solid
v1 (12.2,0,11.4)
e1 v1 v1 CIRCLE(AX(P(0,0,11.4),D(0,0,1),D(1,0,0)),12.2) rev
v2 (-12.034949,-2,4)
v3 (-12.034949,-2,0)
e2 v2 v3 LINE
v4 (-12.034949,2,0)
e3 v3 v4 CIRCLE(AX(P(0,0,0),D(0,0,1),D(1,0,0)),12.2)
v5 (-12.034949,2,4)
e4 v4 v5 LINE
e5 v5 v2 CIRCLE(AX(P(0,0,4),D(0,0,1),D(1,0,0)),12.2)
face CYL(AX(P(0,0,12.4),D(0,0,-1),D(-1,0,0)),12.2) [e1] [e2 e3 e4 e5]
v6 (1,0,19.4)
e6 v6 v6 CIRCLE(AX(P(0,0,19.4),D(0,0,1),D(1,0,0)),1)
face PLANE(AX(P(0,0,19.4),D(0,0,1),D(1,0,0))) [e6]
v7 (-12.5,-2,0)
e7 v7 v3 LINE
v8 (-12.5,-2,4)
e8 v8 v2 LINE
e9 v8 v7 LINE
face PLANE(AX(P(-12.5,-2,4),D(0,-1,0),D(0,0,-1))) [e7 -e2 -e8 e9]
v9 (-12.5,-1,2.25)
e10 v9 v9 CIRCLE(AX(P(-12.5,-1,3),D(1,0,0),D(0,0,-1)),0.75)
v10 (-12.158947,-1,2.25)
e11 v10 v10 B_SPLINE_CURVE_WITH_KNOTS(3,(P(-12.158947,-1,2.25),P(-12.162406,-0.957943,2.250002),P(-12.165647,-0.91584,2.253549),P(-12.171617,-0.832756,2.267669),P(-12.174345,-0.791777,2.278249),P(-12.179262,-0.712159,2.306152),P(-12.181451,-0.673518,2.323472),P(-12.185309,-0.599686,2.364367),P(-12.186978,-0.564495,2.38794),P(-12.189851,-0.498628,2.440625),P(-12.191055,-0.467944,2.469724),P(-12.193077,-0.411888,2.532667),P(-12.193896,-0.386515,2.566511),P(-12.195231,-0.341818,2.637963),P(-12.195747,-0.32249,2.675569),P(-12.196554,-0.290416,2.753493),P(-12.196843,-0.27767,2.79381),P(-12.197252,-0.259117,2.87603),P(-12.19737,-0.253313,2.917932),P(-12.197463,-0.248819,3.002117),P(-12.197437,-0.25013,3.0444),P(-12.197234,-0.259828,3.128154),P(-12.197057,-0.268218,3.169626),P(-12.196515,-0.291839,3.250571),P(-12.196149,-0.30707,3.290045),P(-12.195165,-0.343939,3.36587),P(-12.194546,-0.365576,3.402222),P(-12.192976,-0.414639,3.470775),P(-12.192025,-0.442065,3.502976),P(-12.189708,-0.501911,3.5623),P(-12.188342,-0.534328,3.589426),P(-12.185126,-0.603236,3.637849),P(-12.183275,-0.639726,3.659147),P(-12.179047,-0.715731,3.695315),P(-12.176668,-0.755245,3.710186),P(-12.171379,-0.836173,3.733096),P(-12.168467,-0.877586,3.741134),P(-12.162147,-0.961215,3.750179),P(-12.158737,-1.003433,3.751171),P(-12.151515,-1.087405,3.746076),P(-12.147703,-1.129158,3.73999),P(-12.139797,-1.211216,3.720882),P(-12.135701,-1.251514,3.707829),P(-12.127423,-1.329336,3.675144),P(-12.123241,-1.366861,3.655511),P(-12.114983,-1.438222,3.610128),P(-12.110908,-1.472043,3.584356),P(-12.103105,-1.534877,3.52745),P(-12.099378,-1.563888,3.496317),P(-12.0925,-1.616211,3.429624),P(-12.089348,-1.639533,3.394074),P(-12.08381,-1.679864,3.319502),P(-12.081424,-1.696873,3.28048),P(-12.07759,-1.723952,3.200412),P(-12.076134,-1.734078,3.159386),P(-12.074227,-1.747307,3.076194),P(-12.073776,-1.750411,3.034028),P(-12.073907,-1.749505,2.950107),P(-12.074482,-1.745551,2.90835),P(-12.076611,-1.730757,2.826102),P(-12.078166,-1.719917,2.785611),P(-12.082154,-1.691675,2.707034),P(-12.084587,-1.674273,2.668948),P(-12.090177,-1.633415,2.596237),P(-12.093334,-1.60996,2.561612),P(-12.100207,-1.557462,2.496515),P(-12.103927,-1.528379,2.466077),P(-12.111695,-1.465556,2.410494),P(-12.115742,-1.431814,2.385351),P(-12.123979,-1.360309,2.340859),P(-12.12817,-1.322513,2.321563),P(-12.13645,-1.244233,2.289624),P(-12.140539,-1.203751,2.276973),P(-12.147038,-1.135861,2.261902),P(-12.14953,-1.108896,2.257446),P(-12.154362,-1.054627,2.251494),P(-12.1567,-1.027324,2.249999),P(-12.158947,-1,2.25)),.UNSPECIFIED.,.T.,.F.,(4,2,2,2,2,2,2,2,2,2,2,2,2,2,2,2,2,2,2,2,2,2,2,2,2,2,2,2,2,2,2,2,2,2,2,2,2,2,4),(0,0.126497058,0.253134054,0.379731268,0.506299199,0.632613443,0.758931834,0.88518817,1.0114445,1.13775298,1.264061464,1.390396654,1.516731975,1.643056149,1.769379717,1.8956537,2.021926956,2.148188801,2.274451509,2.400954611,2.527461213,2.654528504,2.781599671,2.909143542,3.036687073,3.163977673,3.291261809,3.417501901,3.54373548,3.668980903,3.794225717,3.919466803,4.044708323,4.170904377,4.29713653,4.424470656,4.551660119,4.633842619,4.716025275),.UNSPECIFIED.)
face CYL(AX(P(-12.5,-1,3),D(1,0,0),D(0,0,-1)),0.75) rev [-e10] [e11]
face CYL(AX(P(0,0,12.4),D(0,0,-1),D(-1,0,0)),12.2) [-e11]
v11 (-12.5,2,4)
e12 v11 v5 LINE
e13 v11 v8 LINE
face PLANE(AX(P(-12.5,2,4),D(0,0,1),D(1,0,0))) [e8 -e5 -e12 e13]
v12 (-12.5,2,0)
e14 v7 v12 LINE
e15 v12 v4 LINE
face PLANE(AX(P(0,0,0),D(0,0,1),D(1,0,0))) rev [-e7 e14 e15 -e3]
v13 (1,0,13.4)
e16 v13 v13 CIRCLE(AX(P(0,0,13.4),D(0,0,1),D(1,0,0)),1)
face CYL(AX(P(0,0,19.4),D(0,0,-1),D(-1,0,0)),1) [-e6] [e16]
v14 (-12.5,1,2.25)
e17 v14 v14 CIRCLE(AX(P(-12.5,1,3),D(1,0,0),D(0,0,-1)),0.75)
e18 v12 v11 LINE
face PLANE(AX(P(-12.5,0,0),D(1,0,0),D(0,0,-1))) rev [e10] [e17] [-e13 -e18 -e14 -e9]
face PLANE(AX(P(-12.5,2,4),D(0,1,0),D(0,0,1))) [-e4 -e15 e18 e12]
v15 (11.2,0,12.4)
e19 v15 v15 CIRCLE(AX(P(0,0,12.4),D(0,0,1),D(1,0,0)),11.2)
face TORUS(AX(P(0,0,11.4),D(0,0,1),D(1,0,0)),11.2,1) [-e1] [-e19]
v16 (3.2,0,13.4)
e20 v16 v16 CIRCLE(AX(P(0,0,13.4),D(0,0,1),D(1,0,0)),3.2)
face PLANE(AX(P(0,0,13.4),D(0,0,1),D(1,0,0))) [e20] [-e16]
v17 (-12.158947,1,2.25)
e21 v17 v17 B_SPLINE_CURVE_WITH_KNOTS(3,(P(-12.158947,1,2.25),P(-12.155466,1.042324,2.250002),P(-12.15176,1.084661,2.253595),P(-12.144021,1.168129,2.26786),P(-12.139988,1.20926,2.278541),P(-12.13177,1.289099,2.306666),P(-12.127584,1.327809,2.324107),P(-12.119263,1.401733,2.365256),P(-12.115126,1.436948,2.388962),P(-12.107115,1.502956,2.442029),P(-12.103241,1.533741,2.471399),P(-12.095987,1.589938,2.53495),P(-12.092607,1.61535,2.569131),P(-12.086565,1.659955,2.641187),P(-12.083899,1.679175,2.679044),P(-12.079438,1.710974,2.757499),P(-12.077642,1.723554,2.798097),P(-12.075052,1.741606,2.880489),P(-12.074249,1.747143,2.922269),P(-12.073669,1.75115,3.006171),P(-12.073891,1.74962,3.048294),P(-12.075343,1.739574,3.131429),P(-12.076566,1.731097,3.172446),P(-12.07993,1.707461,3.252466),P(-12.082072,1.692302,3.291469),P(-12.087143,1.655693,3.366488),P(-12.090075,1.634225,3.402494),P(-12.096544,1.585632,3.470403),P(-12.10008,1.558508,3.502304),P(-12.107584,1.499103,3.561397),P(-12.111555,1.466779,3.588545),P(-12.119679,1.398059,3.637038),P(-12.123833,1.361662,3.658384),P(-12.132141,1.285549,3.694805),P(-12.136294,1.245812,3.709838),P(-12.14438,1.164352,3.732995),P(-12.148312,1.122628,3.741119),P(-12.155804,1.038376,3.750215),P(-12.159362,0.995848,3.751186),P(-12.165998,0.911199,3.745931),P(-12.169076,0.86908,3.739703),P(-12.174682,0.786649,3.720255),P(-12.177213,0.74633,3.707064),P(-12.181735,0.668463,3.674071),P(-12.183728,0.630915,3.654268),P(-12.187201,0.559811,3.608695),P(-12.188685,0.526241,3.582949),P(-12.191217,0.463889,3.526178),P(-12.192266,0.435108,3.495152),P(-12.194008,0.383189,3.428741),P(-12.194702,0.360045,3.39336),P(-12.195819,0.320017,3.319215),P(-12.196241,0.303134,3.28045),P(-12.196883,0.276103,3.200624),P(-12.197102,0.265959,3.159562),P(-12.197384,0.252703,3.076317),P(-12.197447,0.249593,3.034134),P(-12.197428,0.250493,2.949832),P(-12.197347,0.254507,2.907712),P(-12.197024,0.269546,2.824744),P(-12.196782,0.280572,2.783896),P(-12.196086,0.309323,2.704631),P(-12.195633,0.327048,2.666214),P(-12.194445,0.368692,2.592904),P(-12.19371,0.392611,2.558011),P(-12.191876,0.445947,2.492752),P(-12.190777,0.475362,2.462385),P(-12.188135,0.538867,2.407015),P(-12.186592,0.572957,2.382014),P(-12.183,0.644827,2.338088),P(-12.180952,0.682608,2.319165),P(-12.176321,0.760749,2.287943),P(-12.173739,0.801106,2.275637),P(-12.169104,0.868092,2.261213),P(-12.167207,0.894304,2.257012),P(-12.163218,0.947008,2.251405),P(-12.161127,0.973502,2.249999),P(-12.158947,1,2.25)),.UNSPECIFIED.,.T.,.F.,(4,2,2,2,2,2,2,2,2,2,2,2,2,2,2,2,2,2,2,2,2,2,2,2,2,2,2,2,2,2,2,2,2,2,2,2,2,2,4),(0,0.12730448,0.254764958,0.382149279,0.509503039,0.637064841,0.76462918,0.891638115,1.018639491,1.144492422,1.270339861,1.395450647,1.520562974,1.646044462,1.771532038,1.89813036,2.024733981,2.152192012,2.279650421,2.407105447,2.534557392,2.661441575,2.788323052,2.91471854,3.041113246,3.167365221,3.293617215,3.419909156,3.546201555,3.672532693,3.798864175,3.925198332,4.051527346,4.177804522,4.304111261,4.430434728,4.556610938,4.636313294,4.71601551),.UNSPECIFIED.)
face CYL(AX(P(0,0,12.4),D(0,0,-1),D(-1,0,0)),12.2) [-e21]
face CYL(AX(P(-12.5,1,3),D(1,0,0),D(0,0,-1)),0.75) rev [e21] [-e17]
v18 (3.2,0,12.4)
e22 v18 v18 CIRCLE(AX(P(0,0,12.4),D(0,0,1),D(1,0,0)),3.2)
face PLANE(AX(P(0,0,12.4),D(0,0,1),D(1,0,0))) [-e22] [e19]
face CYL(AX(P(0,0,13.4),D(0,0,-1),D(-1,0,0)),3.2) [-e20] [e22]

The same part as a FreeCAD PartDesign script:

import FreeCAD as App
import Part
import Sketcher
Q = App.Units.Quantity


def edges_at(feature, points):
    """Names of the edges that pass closest to the given points."""
    edges = feature.Shape.Edges
    near = lambda p: min(range(len(edges)), key=lambda i: edges[i].distToShape(Part.Vertex(*p))[0])
    return sorted({f"Edge{near(p) + 1}" for p in points})

doc = App.newDocument("Part")
body = doc.addObject("PartDesign::Body", "Body")

# Sketch on XY plane
sketch1 = body.newObject("Sketcher::SketchObject", "Sketch")
sketch1.AttachmentSupport = (doc.getObject("XY_Plane"), [""])
sketch1.MapMode = "FlatFace"
sketch1.addGeometry(Part.Circle(App.Vector(0, 0, 0), App.Vector(0, 0, 1), 12), False)
sketch1.addConstraint(Sketcher.Constraint("Coincident", 0, 3, -1, 1))
sketch1.addConstraint(Sketcher.Constraint("Diameter", 0, Q("24.4 mm")))
pad1 = body.newObject("PartDesign::Pad", "Pad")
pad1.Profile = sketch1
pad1.Length = 12.4

# Sketch on XY plane
sketch2 = body.newObject("Sketcher::SketchObject", "Sketch001")
sketch2.AttachmentSupport = (doc.getObject("XY_Plane"), [""])
sketch2.MapMode = "FlatFace"
sketch2.AttachmentOffset = App.Placement(App.Vector(0, 0, 12.4), App.Rotation())
sketch2.addGeometry(Part.Circle(App.Vector(0, 0, 0), App.Vector(0, 0, 1), 1), False)
sketch2.addConstraint(Sketcher.Constraint("Coincident", 0, 3, -1, 1))
sketch2.addConstraint(Sketcher.Constraint("Diameter", 0, Q("2 mm")))
pad2 = body.newObject("PartDesign::Pad", "Pad001")
pad2.Profile = sketch2
pad2.Length = 7

# Sketch on XY plane
sketch3 = body.newObject("Sketcher::SketchObject", "Sketch002")
sketch3.AttachmentSupport = (doc.getObject("XY_Plane"), [""])
sketch3.MapMode = "FlatFace"
sketch3.AttachmentOffset = App.Placement(App.Vector(0, 0, 12.4), App.Rotation())
sketch3.addGeometry(Part.Circle(App.Vector(0, 0, 0), App.Vector(0, 0, 1), 3.2), False)
sketch3.addConstraint(Sketcher.Constraint("Coincident", 0, 3, -1, 1))
sketch3.addConstraint(Sketcher.Constraint("Diameter", 0, Q("6.4 mm")))
pad3 = body.newObject("PartDesign::Pad", "Pad002")
pad3.Profile = sketch3
pad3.Length = 1

# Sketch on YZ plane
sketch4 = body.newObject("Sketcher::SketchObject", "Sketch003")
sketch4.AttachmentSupport = (doc.getObject("YZ_Plane"), [""])
sketch4.MapMode = "FlatFace"
sketch4.addGeometry(Part.LineSegment(App.Vector(2, 4, 0), App.Vector(-2, 4, 0)), False)
sketch4.addGeometry(Part.LineSegment(App.Vector(-2, 4, 0), App.Vector(-2, 0, 0)), False)
sketch4.addGeometry(Part.LineSegment(App.Vector(-2, 0, 0), App.Vector(2, 0, 0)), False)
sketch4.addGeometry(Part.LineSegment(App.Vector(2, 0, 0), App.Vector(2, 4, 0)), False)
sketch4.addGeometry(Part.Circle(App.Vector(-1, 3, 0), App.Vector(0, 0, 1), 0.8), False)
sketch4.addGeometry(Part.Circle(App.Vector(1, 3, 0), App.Vector(0, 0, 1), 0.8), False)
sketch4.addConstraint(Sketcher.Constraint("Coincident", 0, 2, 1, 1))
sketch4.addConstraint(Sketcher.Constraint("Coincident", 1, 2, 2, 1))
sketch4.addConstraint(Sketcher.Constraint("Coincident", 2, 2, 3, 1))
sketch4.addConstraint(Sketcher.Constraint("Coincident", 3, 2, 0, 1))
sketch4.addConstraint(Sketcher.Constraint("Horizontal", 0))
sketch4.addConstraint(Sketcher.Constraint("Vertical", 1))
sketch4.addConstraint(Sketcher.Constraint("Horizontal", 2))
sketch4.addConstraint(Sketcher.Constraint("Vertical", 3))
sketch4.addConstraint(Sketcher.Constraint("Equal", 4, 5))
sketch4.addConstraint(Sketcher.Constraint("Symmetric", 1, 2, 2, 2, -1, 1))
sketch4.addConstraint(Sketcher.Constraint("Symmetric", 4, 3, 5, 3, -2))
sketch4.addConstraint(Sketcher.Constraint("Equal", 2, 1))
sketch4.addConstraint(Sketcher.Constraint("Diameter", 4, Q("1.5 mm")))
sketch4.addConstraint(Sketcher.Constraint("DistanceX", 0, 2, 0, 1, Q("4 mm")))
sketch4.addConstraint(Sketcher.Constraint("DistanceX", 4, 3, -1, 1, Q("1 mm")))
sketch4.addConstraint(Sketcher.Constraint("DistanceY", -1, 1, 4, 3, Q("3 mm")))
pad4 = body.newObject("PartDesign::Pad", "Pad003")
pad4.Profile = sketch4
pad4.Length = 12.5
pad4.Reversed = True
doc.recompute()

fillet = body.newObject("PartDesign::Fillet", "Fillet")
fillet.Base = (pad4, edges_at(pad4, [(-12.2, 0, 12.4)]))
fillet.Radius = 1

doc.recompute()
